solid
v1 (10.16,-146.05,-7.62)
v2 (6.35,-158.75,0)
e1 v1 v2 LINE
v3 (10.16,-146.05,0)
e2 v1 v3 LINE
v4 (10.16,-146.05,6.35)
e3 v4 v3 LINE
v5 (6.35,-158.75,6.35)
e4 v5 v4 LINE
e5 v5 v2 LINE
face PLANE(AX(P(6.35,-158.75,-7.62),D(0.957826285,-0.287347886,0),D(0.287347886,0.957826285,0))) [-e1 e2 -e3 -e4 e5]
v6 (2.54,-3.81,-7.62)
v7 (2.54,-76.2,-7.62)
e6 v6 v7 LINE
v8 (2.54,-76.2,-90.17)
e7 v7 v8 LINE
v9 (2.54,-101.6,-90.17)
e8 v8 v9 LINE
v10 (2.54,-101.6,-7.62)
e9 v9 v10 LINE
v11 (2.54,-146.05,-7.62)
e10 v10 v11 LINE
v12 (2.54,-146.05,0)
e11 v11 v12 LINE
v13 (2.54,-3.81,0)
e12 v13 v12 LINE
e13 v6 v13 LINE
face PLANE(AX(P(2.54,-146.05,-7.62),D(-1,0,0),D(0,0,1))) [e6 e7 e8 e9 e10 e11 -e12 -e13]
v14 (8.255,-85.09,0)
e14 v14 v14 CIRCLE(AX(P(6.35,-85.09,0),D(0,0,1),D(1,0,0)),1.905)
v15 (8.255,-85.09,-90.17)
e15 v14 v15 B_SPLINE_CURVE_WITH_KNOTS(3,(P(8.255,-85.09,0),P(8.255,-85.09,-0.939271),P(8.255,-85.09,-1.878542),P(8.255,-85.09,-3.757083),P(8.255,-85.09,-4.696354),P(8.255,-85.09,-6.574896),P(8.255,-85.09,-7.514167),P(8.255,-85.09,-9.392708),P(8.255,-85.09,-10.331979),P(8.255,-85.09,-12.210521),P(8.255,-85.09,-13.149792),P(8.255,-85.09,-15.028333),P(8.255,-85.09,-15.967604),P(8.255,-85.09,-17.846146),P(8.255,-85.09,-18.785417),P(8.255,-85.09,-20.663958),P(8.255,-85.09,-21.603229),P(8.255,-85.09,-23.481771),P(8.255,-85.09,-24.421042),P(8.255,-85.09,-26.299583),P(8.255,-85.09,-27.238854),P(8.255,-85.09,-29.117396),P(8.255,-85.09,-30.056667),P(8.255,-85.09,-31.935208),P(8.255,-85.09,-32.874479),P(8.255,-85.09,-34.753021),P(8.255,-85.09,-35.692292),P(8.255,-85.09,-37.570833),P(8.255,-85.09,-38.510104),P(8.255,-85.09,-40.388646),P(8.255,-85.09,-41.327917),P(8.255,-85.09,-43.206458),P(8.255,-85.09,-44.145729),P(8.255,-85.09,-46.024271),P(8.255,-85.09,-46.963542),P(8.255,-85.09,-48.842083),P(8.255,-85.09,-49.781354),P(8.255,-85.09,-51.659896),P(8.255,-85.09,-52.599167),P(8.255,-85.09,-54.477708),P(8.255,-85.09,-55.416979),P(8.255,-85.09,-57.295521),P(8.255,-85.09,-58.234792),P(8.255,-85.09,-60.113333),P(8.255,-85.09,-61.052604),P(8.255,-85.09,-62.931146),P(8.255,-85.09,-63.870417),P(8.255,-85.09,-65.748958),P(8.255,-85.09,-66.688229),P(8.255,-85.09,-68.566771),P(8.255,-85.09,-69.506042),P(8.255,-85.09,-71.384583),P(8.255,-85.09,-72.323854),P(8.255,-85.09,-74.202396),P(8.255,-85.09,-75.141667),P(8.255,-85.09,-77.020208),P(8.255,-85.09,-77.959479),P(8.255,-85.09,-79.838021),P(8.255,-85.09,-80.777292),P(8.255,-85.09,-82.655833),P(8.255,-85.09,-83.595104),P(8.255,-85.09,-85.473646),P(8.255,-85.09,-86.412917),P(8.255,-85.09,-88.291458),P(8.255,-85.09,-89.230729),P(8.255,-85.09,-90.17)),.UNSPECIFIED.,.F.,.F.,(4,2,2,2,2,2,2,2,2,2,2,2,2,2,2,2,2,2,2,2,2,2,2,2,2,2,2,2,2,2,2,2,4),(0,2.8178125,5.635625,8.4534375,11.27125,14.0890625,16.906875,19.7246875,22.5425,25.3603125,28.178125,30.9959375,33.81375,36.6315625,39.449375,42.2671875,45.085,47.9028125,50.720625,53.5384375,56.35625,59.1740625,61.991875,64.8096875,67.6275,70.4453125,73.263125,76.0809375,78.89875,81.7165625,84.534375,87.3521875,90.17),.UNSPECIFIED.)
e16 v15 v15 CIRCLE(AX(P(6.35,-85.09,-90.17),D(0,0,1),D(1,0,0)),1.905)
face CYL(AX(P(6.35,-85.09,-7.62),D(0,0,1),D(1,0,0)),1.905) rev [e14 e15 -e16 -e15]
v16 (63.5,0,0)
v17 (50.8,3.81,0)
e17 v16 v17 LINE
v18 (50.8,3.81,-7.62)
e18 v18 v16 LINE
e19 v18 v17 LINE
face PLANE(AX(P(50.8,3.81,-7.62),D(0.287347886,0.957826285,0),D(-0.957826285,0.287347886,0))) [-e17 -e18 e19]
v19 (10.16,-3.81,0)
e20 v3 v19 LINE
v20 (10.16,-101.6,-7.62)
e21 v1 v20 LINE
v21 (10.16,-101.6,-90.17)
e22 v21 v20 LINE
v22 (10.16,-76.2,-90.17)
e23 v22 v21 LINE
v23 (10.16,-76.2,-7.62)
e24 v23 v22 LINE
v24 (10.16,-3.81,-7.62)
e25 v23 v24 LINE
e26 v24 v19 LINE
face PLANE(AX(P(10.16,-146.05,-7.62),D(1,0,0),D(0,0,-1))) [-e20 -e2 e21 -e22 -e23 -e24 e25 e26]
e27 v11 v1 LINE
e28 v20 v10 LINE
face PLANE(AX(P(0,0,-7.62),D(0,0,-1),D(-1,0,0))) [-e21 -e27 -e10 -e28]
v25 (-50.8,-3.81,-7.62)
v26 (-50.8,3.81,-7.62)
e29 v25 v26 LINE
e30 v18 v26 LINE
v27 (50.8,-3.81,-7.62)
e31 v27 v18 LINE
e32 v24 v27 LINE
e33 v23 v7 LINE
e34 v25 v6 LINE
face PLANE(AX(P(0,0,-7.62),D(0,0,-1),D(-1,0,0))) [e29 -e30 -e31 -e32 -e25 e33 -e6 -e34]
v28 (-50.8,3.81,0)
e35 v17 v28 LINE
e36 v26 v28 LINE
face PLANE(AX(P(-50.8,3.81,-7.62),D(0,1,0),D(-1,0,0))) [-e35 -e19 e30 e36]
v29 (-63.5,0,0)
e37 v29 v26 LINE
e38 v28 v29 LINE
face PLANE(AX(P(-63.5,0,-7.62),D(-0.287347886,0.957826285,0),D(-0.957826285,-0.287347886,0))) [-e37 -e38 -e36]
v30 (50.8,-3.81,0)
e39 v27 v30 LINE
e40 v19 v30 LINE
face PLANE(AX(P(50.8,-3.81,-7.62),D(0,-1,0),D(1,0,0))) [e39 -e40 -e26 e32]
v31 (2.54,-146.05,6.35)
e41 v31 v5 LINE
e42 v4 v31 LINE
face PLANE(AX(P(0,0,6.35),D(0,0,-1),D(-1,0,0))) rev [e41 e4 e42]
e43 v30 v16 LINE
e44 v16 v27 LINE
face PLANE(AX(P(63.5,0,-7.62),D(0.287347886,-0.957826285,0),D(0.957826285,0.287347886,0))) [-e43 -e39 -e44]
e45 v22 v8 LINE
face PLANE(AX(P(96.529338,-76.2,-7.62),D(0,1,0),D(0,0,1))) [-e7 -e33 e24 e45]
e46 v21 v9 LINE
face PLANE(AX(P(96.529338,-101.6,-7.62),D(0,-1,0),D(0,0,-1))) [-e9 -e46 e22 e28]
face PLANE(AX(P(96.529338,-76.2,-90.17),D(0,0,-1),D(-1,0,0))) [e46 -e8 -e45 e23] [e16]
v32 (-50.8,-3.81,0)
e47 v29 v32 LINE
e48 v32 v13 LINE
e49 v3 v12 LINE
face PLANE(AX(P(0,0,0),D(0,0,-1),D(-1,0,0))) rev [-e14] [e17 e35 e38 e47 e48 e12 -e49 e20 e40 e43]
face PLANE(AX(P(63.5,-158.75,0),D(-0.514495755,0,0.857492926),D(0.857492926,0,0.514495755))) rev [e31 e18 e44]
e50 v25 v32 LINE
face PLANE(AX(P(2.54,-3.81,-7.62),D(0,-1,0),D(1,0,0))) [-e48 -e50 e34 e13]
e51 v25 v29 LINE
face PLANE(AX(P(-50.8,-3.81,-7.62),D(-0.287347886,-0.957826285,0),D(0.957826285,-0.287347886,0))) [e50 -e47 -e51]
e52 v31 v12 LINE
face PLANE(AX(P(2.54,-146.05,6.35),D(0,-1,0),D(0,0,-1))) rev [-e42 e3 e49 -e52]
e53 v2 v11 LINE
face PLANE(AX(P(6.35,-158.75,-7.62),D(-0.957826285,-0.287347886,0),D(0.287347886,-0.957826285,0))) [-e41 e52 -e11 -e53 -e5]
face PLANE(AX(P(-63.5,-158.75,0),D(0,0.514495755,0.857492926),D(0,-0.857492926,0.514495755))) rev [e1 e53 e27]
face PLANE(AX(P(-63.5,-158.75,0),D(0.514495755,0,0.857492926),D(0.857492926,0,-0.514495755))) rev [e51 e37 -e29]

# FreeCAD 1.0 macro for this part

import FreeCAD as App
import Part
import Sketcher
from FreeCAD import Vector
Q = App.Units.Quantity

doc = App.newDocument("Part")
body = doc.addObject("PartDesign::Body", "Body")

sketch1 = body.newObject("Sketcher::SketchObject", "Sketch")
sketch1.AttachmentSupport = (doc.getObject("XY_Plane"), [""])
sketch1.MapMode = "FlatFace"
sketch1.addGeometry(Part.LineSegment(Vector(-50.8, 3.8, 0), Vector(-63.5, 0, 0)), False)
sketch1.addGeometry(Part.LineSegment(Vector(-63.5, 0, 0), Vector(-50.8, -3.8, 0)), False)
sketch1.addGeometry(Part.LineSegment(Vector(-50.8, -3.8, 0), Vector(2.5, -3.8, 0)), False)
sketch1.addGeometry(Part.LineSegment(Vector(2.5, -3.8, 0), Vector(2.5, -146.1, 0)), False)
sketch1.addGeometry(Part.LineSegment(Vector(2.5, -146.1, 0), Vector(6.3, -158.8, 0)), False)
sketch1.addGeometry(Part.LineSegment(Vector(6.3, -158.8, 0), Vector(10.2, -146.1, 0)), False)
sketch1.addGeometry(Part.LineSegment(Vector(10.2, -146.1, 0), Vector(10.2, -3.8, 0)), False)
sketch1.addGeometry(Part.LineSegment(Vector(10.2, -3.8, 0), Vector(50.8, -3.8, 0)), False)
sketch1.addGeometry(Part.LineSegment(Vector(50.8, -3.8, 0), Vector(63.5, 0, 0)), False)
sketch1.addGeometry(Part.LineSegment(Vector(63.5, 0, 0), Vector(50.8, 3.8, 0)), False)
sketch1.addGeometry(Part.LineSegment(Vector(50.8, 3.8, 0), Vector(-50.8, 3.8, 0)), False)
sketch1.addGeometry(Part.Circle(Vector(6.3, -85.1, 0), Vector(0, 0, 1), 1.9), False)
sketch1.addConstraint(Sketcher.Constraint("Coincident", 0, 2, 1, 1))
sketch1.addConstraint(Sketcher.Constraint("Coincident", 1, 2, 2, 1))
sketch1.addConstraint(Sketcher.Constraint("Coincident", 2, 2, 3, 1))
sketch1.addConstraint(Sketcher.Constraint("Coincident", 3, 2, 4, 1))
sketch1.addConstraint(Sketcher.Constraint("Coincident", 4, 2, 5, 1))
sketch1.addConstraint(Sketcher.Constraint("Coincident", 5, 2, 6, 1))
sketch1.addConstraint(Sketcher.Constraint("Coincident", 6, 2, 7, 1))
sketch1.addConstraint(Sketcher.Constraint("Coincident", 7, 2, 8, 1))
sketch1.addConstraint(Sketcher.Constraint("Coincident", 8, 2, 9, 1))
sketch1.addConstraint(Sketcher.Constraint("Coincident", 9, 2, 10, 1))
sketch1.addConstraint(Sketcher.Constraint("Coincident", 10, 2, 0, 1))
sketch1.addConstraint(Sketcher.Constraint("Horizontal", 2))
sketch1.addConstraint(Sketcher.Constraint("Vertical", 3))
sketch1.addConstraint(Sketcher.Constraint("Vertical", 6))
sketch1.addConstraint(Sketcher.Constraint("Horizontal", 7))
sketch1.addConstraint(Sketcher.Constraint("Horizontal", 10))
sketch1.addConstraint(Sketcher.Constraint("Symmetric", 0, 2, 8, 2, -1, 1))
sketch1.addConstraint(Sketcher.Constraint("Symmetric", 1, 2, 9, 2, -1, 1))
sketch1.addConstraint(Sketcher.Constraint("Symmetric", 7, 2, 10, 2, -1, 1))
sketch1.addConstraint(Sketcher.Constraint("PointOnObject", 0, 2, -1))
sketch1.addConstraint(Sketcher.Constraint("Perpendicular", 0, 4))
sketch1.addConstraint(Sketcher.Constraint("Perpendicular", 1, 5))
sketch1.addConstraint(Sketcher.Constraint("Horizontal", 3, 2, 5, 2))
sketch1.addConstraint(Sketcher.Constraint("Vertical", 11, 3, 4, 2))
sketch1.addConstraint(Sketcher.Constraint("Vertical", 7, 2, 9, 2))
sketch1.addConstraint(Sketcher.Constraint("Equal", 1, 4))
sketch1.addConstraint(Sketcher.Constraint("Diameter", 11, Q("0.15 in")))
sketch1.addConstraint(Sketcher.Constraint("DistanceX", 10, 2, 10, 1, Q("4 in")))
sketch1.addConstraint(Sketcher.Constraint("DistanceX", 2, 1, 2, 2, Q("2.1 in")))
sketch1.addConstraint(Sketcher.Constraint("DistanceX", 7, 1, 7, 2, Q("1.6 in")))
sketch1.addConstraint(Sketcher.Constraint("DistanceY", 3, 2, 3, 1, Q("5.6 in")))
sketch1.addConstraint(Sketcher.Constraint("DistanceX", 0, 2, -1, 1, Q("2.5 in")))
sketch1.addConstraint(Sketcher.Constraint("DistanceY", 11, 3, 1, 2, Q("3.2 in")))
pad1 = body.newObject("PartDesign::Pad", "Pad")
pad1.Profile = sketch1
pad1.Length = Q("0.3 in")
pad1.Reversed = True

sketch2 = body.newObject("Sketcher::SketchObject", "Sketch001")
sketch2.AttachmentSupport = (doc.getObject("XZ_Plane"), [""])
sketch2.MapMode = "FlatFace"
sketch2.AttachmentOffset = App.Placement(Vector(0, 0, -0.15 * 25.4), App.Rotation())
sketch2.addGeometry(Part.LineSegment(Vector(-64, 0, 0), Vector(-51, -8, 0)), False)
sketch2.addGeometry(Part.LineSegment(Vector(-51, -8, 0), Vector(-64, -8, 0)), False)
sketch2.addGeometry(Part.LineSegment(Vector(-64, -8, 0), Vector(-64, 0, 0)), False)
sketch2.addGeometry(Part.LineSegment(Vector(64, 0, 0), Vector(64, -8, 0)), False)
sketch2.addGeometry(Part.LineSegment(Vector(64, -8, 0), Vector(51, -8, 0)), False)
sketch2.addGeometry(Part.LineSegment(Vector(51, -8, 0), Vector(64, 0, 0)), False)
sketch2.addConstraint(Sketcher.Constraint("Coincident", 0, 2, 1, 1))
sketch2.addConstraint(Sketcher.Constraint("Coincident", 1, 2, 2, 1))
sketch2.addConstraint(Sketcher.Constraint("Coincident", 2, 2, 0, 1))
sketch2.addConstraint(Sketcher.Constraint("Coincident", 3, 2, 4, 1))
sketch2.addConstraint(Sketcher.Constraint("Coincident", 4, 2, 5, 1))
sketch2.addConstraint(Sketcher.Constraint("Coincident", 5, 2, 3, 1))
sketch2.addConstraint(Sketcher.Constraint("Horizontal", 1))
sketch2.addConstraint(Sketcher.Constraint("Vertical", 2))
sketch2.addConstraint(Sketcher.Constraint("Vertical", 3))
sketch2.addConstraint(Sketcher.Constraint("Horizontal", 4))
sketch2.addConstraint(Sketcher.Constraint("Symmetric", 2, 2, 5, 2, -1, 1))
sketch2.addConstraint(Sketcher.Constraint("Symmetric", 0, 2, 4, 2, -2))
sketch2.addConstraint(Sketcher.Constraint("PointOnObject", 2, 2, -1))
sketch2.addConstraint(Sketcher.Constraint("DistanceX", 1, 2, 1, 1, Q("0.5 in")))
sketch2.addConstraint(Sketcher.Constraint("DistanceY", 2, 1, 2, 2, Q("0.3 in")))
sketch2.addConstraint(Sketcher.Constraint("DistanceX", 0, 2, -1, 1, Q("2 in")))
pocket1 = body.newObject("PartDesign::Pocket", "Pocket")
pocket1.Profile = sketch2
pocket1.Type = "ThroughAll"
pocket1.Reversed = True

sketch3 = body.newObject("Sketcher::SketchObject", "Sketch002")
sketch3.AttachmentSupport = (doc.getObject("YZ_Plane"), [""])
sketch3.MapMode = "FlatFace"
sketch3.AttachmentOffset = App.Placement(Vector(0, 0, 0.4 * 25.4), App.Rotation())
sketch3.addGeometry(Part.LineSegment(Vector(-146, -8, 0), Vector(-159, 0, 0)), False)
sketch3.addGeometry(Part.LineSegment(Vector(-159, 0, 0), Vector(-159, -8, 0)), False)
sketch3.addGeometry(Part.LineSegment(Vector(-159, -8, 0), Vector(-146, -8, 0)), False)
sketch3.addConstraint(Sketcher.Constraint("Coincident", 0, 2, 1, 1))
sketch3.addConstraint(Sketcher.Constraint("Coincident", 1, 2, 2, 1))
sketch3.addConstraint(Sketcher.Constraint("Coincident", 2, 2, 0, 1))
sketch3.addConstraint(Sketcher.Constraint("Vertical", 1))
sketch3.addConstraint(Sketcher.Constraint("Horizontal", 2))
sketch3.addConstraint(Sketcher.Constraint("PointOnObject", 0, 2, -1))
sketch3.addConstraint(Sketcher.Constraint("DistanceX", 2, 1, 2, 2, Q("0.5 in")))
sketch3.addConstraint(Sketcher.Constraint("DistanceY", 1, 2, 1, 1, Q("0.3 in")))
sketch3.addConstraint(Sketcher.Constraint("DistanceX", 0, 2, -1, 1, Q("6.25 in")))
pocket2 = body.newObject("PartDesign::Pocket", "Pocket001")
pocket2.Profile = sketch3
pocket2.Type = "ThroughAll"

sketch4 = body.newObject("Sketcher::SketchObject", "Sketch003")
sketch4.AttachmentSupport = (doc.getObject("XY_Plane"), [""])
sketch4.MapMode = "FlatFace"
sketch4.addGeometry(Part.LineSegment(Vector(10, -146, 0), Vector(3, -146, 0)), False)
sketch4.addGeometry(Part.LineSegment(Vector(3, -146, 0), Vector(6, -159, 0)), False)
sketch4.addGeometry(Part.LineSegment(Vector(6, -159, 0), Vector(10, -146, 0)), False)
sketch4.addConstraint(Sketcher.Constraint("Coincident", 0, 2, 1, 1))
sketch4.addConstraint(Sketcher.Constraint("Coincident", 1, 2, 2, 1))
sketch4.addConstraint(Sketcher.Constraint("Coincident", 2, 2, 0, 1))
sketch4.addConstraint(Sketcher.Constraint("Horizontal", 0))
sketch4.addConstraint(Sketcher.Constraint("Equal", 1, 2))
sketch4.addConstraint(Sketcher.Constraint("DistanceX", 0, 2, 0, 1, Q("0.3 in")))
sketch4.addConstraint(Sketcher.Constraint("DistanceX", -1, 1, 0, 2, Q("0.1 in")))
sketch4.addConstraint(Sketcher.Constraint("DistanceY", 1, 2, 0, 2, Q("0.5 in")))
sketch4.addConstraint(Sketcher.Constraint("DistanceY", 0, 2, -1, 1, Q("5.75 in")))
pad2 = body.newObject("PartDesign::Pad", "Pad001")
pad2.Profile = sketch4
pad2.Length = Q("0.25 in")

sketch5 = body.newObject("Sketcher::SketchObject", "Sketch004")
sketch5.AttachmentSupport = (doc.getObject("YZ_Plane"), [""])
sketch5.MapMode = "FlatFace"
sketch5.AttachmentOffset = App.Placement(Vector(0, 0, 0.1 * 25.4), App.Rotation())
sketch5.addGeometry(Part.LineSegment(Vector(-76, -90, 0), Vector(-102, -90, 0)), False)
sketch5.addGeometry(Part.LineSegment(Vector(-102, -90, 0), Vector(-102, -8, 0)), False)
sketch5.addGeometry(Part.LineSegment(Vector(-102, -8, 0), Vector(-76, -8, 0)), False)
sketch5.addGeometry(Part.LineSegment(Vector(-76, -8, 0), Vector(-76, -90, 0)), False)
sketch5.addConstraint(Sketcher.Constraint("Coincident", 0, 2, 1, 1))
sketch5.addConstraint(Sketcher.Constraint("Coincident", 1, 2, 2, 1))
sketch5.addConstraint(Sketcher.Constraint("Coincident", 2, 2, 3, 1))
sketch5.addConstraint(Sketcher.Constraint("Coincident", 3, 2, 0, 1))
sketch5.addConstraint(Sketcher.Constraint("Horizontal", 0))
sketch5.addConstraint(Sketcher.Constraint("Vertical", 1))
sketch5.addConstraint(Sketcher.Constraint("Horizontal", 2))
sketch5.addConstraint(Sketcher.Constraint("Vertical", 3))
sketch5.addConstraint(Sketcher.Constraint("DistanceX", 0, 2, 0, 1, Q("1 in")))
sketch5.addConstraint(Sketcher.Constraint("DistanceX", 0, 2, -1, 1, Q("4 in")))
sketch5.addConstraint(Sketcher.Constraint("DistanceY", 1, 1, 1, 2, Q("3.25 in")))
sketch5.addConstraint(Sketcher.Constraint("DistanceY", 1, 2, -1, 1, Q("0.3 in")))
pad3 = body.newObject("PartDesign::Pad", "Pad002")
pad3.Profile = sketch5
pad3.Length = Q("0.3 in")

sketch6 = body.newObject("Sketcher::SketchObject", "Sketch005")
sketch6.AttachmentSupport = (doc.getObject("XY_Plane"), [""])
sketch6.MapMode = "FlatFace"
sketch6.AttachmentOffset = App.Placement(Vector(0, 0, -0.3 * 25.4), App.Rotation())
sketch6.addGeometry(Part.Circle(Vector(6.3, -85.1, 0), Vector(0, 0, 1), 1.9), False)
sketch6.addConstraint(Sketcher.Constraint("Diameter", 0, Q("0.15 in")))
sketch6.addConstraint(Sketcher.Constraint("DistanceX", -1, 1, 0, 3, Q("0.25 in")))
sketch6.addConstraint(Sketcher.Constraint("DistanceY", 0, 3, -1, 1, Q("3.35 in")))
pocket3 = body.newObject("PartDesign::Pocket", "Pocket002")
pocket3.Profile = sketch6
pocket3.Type = "ThroughAll"
pocket3.Midplane = True

doc.recompute()
